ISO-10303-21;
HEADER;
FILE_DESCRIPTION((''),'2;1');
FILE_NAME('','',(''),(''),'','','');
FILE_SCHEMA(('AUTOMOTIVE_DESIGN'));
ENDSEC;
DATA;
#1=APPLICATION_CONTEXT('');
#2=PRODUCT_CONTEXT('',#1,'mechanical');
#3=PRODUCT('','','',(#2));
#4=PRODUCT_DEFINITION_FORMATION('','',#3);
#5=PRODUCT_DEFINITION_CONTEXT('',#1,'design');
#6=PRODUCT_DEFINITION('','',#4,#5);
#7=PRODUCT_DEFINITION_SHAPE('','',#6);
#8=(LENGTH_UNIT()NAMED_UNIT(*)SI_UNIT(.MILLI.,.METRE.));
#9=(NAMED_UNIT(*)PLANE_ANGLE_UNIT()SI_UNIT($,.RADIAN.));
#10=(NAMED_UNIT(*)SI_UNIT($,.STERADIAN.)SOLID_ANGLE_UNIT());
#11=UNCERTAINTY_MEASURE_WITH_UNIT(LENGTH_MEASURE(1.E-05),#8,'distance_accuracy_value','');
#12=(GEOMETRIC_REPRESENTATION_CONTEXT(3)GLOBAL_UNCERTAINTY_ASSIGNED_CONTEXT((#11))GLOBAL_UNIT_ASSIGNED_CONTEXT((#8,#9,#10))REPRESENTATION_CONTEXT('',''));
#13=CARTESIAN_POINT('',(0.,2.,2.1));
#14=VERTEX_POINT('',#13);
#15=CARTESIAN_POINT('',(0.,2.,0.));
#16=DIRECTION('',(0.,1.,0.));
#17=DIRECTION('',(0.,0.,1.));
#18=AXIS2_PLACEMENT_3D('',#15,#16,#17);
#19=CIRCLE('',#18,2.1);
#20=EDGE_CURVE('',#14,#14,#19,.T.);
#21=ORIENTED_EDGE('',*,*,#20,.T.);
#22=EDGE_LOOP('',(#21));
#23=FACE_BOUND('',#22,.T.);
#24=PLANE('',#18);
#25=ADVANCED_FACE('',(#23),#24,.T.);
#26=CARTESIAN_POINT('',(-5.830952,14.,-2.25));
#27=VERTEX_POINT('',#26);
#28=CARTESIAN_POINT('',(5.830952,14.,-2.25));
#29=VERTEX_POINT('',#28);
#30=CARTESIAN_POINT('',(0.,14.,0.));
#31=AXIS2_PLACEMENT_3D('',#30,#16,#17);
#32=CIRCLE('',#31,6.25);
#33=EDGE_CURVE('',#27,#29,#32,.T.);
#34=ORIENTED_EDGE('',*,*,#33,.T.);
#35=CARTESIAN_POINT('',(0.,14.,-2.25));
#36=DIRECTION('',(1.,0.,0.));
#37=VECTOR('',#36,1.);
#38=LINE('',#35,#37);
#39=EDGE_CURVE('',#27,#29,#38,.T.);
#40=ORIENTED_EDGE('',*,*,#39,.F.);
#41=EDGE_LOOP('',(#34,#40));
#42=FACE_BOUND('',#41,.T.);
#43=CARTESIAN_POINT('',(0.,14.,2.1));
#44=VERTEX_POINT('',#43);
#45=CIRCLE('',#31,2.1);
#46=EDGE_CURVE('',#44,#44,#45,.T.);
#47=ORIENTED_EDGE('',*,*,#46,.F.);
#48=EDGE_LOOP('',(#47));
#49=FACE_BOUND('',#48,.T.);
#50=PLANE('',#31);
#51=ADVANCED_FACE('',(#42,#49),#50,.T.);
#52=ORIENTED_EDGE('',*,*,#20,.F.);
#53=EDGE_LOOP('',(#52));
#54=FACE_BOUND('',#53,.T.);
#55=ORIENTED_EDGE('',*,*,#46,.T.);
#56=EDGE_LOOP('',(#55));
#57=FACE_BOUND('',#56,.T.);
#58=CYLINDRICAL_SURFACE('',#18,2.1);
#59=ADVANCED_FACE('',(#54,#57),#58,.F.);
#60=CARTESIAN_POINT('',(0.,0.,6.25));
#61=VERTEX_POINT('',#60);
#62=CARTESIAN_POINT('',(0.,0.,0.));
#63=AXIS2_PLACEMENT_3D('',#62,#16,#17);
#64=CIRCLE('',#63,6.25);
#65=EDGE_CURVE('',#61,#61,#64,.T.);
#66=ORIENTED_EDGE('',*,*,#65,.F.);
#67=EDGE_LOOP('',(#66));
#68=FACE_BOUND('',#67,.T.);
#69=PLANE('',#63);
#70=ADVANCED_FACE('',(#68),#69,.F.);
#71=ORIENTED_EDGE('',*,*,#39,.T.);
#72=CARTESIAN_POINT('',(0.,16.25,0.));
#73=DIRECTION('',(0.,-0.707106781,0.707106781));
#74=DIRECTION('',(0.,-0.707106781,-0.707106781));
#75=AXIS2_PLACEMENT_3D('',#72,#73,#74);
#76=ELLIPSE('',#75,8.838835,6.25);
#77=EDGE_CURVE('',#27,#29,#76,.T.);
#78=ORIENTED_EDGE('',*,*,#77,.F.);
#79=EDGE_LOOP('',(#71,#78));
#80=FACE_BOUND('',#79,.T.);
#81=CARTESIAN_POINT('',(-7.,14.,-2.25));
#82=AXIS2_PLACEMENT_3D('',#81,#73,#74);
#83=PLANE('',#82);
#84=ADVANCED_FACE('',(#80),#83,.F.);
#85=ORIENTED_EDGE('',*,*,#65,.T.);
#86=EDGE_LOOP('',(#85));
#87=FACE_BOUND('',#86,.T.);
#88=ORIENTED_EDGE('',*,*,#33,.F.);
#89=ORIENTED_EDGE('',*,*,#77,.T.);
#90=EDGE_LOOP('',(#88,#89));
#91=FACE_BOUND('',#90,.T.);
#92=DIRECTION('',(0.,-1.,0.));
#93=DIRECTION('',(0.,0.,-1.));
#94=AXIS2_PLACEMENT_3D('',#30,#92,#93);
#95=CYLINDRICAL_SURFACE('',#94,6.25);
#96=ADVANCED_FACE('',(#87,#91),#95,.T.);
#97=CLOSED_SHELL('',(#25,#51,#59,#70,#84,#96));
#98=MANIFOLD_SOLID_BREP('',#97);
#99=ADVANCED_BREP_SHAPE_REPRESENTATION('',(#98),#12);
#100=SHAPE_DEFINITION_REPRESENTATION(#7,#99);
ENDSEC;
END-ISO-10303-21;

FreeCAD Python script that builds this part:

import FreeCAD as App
import Part
import Sketcher
from FreeCAD import Vector

doc = App.newDocument("Part")
body = doc.addObject("PartDesign::Body", "Body")

sketch1 = body.newObject("Sketcher::SketchObject", "Sketch")
sketch1.AttachmentSupport = (doc.getObject("XZ_Plane"), [""])
sketch1.MapMode = "FlatFace"
sketch1.addGeometry(Part.Circle(Vector(0, 0, 0), Vector(0, 0, 1), 6.25), False)
sketch1.addConstraint([
    Sketcher.Constraint("Coincident", 0, 3, -1, 1),
    Sketcher.Constraint("Diameter", 0, 12.5),
])
pad1 = body.newObject("PartDesign::Pad", "Pad")
pad1.Profile = sketch1
pad1.Length = 14
pad1.Reversed = True

sketch2 = body.newObject("Sketcher::SketchObject", "Sketch001")
sketch2.AttachmentSupport = (doc.getObject("XZ_Plane"), [""])
sketch2.MapMode = "FlatFace"
sketch2.AttachmentOffset = App.Placement(Vector(0, 0, -14), App.Rotation())
sketch2.addGeometry(Part.Circle(Vector(0, 0, 0), Vector(0, 0, 1), 2.1), False)
sketch2.addConstraint([
    Sketcher.Constraint("Coincident", 0, 3, -1, 1),
    Sketcher.Constraint("Diameter", 0, 4.2),
])
pocket1 = body.newObject("PartDesign::Pocket", "Pocket")
pocket1.Profile = sketch2
pocket1.Length = 12
pocket1.Reversed = True

sketch3 = body.newObject("Sketcher::SketchObject", "Sketch002")
sketch3.AttachmentSupport = (doc.getObject("YZ_Plane"), [""])
sketch3.MapMode = "FlatFace"
sketch3.addGeometry([
    Part.LineSegment(Vector(14, -2.25, 0), Vector(10, -6.25, 0)),
    Part.LineSegment(Vector(10, -6.25, 0), Vector(14, -6.25, 0)),
    Part.LineSegment(Vector(14, -6.25, 0), Vector(14, -2.25, 0)),
], False)
sketch3.addConstraint([
    Sketcher.Constraint("Coincident", 0, 2, 1, 1),
    Sketcher.Constraint("Coincident", 1, 2, 2, 1),
    Sketcher.Constraint("Coincident", 2, 2, 0, 1),
    Sketcher.Constraint("Horizontal", 1),
    Sketcher.Constraint("Vertical", 2),
    Sketcher.Constraint("Equal", 1, 2),
    Sketcher.Constraint("DistanceX", 1, 1, 1, 2, 4.0),
    Sketcher.Constraint("DistanceX", -1, 1, 0, 2, 10.0),
    Sketcher.Constraint("DistanceY", 0, 2, -1, 1, 6.25),
])
pocket2 = body.newObject("PartDesign::Pocket", "Pocket001")
pocket2.Profile = sketch3
pocket2.Length = 14
pocket2.Midplane = True

doc.recompute()
